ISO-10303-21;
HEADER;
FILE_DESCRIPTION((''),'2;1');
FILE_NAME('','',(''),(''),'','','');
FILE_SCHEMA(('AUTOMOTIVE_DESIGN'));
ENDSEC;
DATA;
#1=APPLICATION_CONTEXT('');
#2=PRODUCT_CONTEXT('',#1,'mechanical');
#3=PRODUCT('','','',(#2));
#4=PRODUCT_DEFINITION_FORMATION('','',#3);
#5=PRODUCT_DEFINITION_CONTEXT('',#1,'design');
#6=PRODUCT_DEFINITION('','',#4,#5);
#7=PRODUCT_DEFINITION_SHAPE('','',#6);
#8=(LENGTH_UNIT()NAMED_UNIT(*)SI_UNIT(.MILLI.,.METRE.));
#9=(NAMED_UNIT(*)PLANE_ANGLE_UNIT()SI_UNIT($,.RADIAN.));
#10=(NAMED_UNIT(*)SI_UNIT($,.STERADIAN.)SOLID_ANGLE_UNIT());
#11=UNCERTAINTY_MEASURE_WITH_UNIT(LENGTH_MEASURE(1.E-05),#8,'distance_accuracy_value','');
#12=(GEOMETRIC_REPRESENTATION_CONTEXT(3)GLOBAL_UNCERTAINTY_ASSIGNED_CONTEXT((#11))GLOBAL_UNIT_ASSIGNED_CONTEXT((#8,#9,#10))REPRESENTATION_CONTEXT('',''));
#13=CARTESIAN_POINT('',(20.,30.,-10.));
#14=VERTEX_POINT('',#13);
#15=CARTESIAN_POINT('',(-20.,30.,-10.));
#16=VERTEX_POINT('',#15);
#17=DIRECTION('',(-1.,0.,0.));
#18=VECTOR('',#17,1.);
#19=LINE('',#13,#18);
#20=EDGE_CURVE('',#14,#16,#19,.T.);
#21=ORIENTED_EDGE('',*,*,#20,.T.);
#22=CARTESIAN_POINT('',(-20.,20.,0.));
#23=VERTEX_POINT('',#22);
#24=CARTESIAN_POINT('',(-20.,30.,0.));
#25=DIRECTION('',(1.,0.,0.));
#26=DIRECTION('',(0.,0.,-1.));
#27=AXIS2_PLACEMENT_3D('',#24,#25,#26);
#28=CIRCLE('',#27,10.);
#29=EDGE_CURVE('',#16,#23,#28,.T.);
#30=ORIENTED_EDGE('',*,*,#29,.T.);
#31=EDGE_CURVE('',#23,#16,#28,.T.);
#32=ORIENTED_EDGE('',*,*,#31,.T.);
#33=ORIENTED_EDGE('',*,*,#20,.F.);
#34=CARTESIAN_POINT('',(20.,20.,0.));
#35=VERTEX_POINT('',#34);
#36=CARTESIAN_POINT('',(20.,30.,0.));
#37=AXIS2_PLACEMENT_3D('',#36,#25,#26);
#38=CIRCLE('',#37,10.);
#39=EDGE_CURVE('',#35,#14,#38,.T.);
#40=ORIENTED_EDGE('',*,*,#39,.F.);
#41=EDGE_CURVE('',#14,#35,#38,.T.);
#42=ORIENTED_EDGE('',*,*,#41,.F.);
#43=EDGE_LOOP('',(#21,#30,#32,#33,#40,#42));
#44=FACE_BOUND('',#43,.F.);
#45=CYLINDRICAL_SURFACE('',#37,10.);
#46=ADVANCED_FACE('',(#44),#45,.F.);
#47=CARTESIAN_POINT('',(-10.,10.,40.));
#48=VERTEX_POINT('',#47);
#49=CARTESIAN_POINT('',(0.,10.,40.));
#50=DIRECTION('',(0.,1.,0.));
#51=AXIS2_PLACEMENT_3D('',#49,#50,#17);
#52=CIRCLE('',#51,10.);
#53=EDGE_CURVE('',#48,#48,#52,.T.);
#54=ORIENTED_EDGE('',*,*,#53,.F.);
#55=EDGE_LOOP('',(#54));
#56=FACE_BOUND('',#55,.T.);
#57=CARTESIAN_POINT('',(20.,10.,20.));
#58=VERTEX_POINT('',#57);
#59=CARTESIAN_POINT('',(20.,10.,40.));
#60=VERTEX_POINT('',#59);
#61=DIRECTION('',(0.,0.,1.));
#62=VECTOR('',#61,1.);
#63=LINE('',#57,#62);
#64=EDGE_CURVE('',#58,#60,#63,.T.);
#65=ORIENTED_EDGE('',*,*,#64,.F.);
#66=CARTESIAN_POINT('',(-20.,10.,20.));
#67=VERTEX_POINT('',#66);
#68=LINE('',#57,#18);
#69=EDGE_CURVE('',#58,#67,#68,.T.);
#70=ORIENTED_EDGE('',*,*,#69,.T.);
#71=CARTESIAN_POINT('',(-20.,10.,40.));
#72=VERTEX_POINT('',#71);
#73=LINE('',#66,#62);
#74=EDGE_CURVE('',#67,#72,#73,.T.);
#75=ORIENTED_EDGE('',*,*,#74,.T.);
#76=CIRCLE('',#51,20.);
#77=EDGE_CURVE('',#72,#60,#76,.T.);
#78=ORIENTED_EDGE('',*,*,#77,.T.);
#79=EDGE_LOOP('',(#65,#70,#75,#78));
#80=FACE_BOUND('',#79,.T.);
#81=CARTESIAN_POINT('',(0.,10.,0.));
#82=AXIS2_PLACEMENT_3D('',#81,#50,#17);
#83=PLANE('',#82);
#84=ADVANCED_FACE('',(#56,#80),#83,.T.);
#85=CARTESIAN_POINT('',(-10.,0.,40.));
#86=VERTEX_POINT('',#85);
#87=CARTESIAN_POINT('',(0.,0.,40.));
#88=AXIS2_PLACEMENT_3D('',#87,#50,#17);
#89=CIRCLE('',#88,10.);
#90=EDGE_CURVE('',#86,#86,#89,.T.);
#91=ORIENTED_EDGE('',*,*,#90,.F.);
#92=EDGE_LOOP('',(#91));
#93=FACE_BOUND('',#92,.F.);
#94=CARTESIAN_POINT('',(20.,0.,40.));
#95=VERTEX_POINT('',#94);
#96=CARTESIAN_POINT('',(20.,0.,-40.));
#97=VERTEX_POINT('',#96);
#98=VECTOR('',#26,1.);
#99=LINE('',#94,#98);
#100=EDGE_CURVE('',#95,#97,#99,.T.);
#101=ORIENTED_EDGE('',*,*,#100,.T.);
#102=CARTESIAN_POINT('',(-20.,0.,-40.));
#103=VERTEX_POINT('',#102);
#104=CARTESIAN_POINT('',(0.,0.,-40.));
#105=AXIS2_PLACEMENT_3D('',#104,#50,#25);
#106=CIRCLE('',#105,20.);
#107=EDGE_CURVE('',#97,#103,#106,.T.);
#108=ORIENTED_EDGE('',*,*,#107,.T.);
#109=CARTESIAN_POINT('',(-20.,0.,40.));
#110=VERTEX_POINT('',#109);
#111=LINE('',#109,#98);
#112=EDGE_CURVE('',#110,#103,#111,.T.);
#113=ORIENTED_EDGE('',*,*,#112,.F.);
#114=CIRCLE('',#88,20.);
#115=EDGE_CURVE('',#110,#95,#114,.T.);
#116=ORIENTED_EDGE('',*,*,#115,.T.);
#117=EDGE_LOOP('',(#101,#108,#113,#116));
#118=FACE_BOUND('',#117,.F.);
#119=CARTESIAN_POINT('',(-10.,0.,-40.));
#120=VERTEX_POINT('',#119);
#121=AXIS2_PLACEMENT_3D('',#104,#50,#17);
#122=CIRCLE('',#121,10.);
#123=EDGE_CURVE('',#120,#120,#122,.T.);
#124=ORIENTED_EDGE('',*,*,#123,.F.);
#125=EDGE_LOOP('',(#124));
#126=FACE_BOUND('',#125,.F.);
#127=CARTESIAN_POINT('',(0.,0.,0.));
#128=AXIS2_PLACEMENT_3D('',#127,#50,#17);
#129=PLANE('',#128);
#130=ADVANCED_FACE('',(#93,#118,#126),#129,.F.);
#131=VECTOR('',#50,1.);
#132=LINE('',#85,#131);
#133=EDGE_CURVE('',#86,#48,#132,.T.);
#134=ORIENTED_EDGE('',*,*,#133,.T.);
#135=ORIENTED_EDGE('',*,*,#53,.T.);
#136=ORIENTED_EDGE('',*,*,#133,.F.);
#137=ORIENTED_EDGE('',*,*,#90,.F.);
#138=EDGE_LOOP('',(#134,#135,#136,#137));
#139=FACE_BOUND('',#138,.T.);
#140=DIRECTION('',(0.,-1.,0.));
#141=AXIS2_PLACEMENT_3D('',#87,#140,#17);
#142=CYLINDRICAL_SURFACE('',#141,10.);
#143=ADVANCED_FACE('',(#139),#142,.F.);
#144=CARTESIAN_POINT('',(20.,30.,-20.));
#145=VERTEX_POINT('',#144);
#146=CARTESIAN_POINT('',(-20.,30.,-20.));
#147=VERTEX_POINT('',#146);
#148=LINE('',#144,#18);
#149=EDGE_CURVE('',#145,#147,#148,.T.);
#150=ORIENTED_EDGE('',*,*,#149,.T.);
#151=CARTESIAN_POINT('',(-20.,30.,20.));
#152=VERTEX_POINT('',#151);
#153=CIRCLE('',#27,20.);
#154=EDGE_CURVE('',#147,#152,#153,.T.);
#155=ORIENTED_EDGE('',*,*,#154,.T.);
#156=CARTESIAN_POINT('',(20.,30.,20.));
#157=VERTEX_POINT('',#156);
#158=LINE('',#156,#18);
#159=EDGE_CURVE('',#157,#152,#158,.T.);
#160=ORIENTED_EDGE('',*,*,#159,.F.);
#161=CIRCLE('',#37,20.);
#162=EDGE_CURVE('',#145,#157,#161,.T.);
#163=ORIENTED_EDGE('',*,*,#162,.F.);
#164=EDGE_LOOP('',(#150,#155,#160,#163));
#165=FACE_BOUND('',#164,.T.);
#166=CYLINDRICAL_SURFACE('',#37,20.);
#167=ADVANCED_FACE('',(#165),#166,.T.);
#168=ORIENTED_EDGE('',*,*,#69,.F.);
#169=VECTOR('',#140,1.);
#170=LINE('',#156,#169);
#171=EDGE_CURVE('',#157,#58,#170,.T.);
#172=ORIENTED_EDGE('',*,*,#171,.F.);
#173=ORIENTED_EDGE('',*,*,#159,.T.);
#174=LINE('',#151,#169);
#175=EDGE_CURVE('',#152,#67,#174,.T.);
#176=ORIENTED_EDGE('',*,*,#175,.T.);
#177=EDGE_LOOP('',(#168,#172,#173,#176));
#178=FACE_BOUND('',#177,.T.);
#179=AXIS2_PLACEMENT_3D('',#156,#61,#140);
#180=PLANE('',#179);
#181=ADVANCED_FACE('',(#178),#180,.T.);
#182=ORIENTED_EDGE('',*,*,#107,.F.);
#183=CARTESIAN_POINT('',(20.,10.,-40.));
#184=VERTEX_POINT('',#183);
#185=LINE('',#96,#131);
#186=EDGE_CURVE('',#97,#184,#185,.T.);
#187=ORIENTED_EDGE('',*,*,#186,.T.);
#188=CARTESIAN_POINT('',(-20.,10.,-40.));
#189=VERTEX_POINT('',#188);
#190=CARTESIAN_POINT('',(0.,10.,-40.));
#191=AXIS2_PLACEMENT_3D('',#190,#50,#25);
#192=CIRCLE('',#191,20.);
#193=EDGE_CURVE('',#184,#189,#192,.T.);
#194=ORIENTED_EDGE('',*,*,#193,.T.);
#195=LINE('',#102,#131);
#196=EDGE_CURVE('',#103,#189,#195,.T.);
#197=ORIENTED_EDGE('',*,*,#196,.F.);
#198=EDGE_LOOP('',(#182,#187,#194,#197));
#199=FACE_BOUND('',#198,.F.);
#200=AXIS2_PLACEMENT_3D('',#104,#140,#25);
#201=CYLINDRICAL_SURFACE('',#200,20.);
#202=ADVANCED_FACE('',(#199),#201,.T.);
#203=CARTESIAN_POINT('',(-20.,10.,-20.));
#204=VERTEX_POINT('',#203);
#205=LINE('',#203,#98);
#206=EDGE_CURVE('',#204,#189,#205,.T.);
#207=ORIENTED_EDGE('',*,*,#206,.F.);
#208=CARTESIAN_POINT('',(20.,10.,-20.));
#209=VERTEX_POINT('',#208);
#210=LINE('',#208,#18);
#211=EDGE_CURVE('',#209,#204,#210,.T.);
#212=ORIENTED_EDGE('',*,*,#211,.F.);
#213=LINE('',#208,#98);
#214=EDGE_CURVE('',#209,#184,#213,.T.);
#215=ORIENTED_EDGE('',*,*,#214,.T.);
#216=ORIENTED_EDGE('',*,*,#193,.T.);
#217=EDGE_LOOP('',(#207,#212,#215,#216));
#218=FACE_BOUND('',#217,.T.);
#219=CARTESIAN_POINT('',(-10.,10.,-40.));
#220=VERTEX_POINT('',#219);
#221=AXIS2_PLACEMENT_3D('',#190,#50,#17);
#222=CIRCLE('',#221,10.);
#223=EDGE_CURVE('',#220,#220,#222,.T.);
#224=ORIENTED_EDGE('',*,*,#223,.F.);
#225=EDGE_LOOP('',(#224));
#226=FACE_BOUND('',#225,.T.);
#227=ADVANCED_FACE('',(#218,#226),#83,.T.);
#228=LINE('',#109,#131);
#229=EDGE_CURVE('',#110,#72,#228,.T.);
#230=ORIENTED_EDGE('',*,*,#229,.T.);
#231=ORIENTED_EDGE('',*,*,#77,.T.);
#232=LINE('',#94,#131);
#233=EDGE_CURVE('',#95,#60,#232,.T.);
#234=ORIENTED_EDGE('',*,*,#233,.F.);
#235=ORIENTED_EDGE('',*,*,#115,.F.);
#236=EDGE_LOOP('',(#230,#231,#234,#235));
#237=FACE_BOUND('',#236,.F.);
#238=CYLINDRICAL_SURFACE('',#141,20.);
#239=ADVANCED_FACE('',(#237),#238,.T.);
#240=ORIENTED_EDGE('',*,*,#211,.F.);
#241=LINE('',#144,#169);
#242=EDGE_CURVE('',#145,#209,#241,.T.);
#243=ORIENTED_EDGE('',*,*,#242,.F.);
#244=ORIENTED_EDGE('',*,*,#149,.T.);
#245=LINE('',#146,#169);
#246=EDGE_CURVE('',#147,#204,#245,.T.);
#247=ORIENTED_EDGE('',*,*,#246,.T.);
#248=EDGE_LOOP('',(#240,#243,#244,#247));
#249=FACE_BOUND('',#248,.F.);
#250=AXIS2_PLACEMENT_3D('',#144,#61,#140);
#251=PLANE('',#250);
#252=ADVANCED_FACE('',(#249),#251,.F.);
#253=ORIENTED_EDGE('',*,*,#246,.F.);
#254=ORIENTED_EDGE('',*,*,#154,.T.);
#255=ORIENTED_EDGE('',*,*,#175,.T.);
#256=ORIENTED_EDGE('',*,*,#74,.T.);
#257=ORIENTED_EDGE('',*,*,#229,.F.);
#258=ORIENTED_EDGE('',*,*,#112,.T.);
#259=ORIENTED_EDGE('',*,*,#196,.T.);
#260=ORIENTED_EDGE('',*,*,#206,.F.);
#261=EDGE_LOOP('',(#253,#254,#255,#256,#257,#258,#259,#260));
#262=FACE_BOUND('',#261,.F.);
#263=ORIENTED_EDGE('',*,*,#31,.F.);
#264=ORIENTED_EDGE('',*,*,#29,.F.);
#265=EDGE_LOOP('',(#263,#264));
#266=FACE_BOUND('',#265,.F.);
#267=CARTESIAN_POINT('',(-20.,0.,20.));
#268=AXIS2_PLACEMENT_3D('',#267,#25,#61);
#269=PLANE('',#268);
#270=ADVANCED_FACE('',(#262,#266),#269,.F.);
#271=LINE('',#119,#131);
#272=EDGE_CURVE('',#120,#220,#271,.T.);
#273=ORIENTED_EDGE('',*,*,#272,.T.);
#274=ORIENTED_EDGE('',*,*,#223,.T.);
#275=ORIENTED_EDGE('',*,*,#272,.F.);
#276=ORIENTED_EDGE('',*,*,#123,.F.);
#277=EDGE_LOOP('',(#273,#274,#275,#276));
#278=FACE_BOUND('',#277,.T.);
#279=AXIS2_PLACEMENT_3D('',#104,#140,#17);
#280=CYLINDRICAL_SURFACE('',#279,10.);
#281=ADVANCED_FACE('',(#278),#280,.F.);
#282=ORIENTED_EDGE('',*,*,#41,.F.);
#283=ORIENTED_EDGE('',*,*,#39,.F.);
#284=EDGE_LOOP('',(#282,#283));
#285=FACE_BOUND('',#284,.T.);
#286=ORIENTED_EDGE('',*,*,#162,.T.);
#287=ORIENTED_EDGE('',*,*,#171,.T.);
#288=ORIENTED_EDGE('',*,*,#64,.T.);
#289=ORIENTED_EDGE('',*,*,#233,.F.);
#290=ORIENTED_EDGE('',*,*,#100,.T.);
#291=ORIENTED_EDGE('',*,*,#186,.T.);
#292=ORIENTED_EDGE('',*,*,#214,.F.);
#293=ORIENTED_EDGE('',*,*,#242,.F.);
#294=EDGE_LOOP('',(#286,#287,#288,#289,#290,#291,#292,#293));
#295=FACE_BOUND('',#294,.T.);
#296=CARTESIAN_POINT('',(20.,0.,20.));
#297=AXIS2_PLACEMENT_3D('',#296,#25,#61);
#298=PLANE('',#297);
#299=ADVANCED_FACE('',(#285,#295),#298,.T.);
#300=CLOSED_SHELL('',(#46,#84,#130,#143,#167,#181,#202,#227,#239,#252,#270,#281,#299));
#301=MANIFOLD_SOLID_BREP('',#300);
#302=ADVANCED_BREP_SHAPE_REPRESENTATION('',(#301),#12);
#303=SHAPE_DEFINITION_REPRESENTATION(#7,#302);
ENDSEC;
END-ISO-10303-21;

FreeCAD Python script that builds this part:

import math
import FreeCAD as App
import Part
import Sketcher
from FreeCAD import Vector

doc = App.newDocument("Part")
params = doc.addObject("Spreadsheet::Sheet", "Params")
for row, (alias, value) in enumerate([
    ("sketch1_diameter", "20 mm"),
    ("sketch1_radius", "20 mm"),
    ("sketch1_height", "80 mm"),
    ("pad1_length", "10 mm"),
    ("sketch2_diameter", "20 mm"),
    ("sketch2_radius", "20 mm"),
    ("pad2_length", "40 mm"),
], start=1):
    params.set(f"A{row}", alias)
    params.set(f"B{row}", "=" + value)
    params.setAlias(f"B{row}", alias)

body = doc.addObject("PartDesign::Body", "Body")

sketch1 = doc.addObject("Sketcher::SketchObject", "Sketch")
body.addObject(sketch1)
sketch1.AttachmentSupport = (doc.XZ_Plane, [""])
sketch1.MapMode = "FlatFace"
sketch1.addGeometry([
    Part.LineSegment(Vector(20, 40, 0), Vector(20, -40, 0)),
    Part.ArcOfCircle(Part.Circle(Vector(0, -40, 0), Vector(0, 0, 1), 20), math.radians(180), math.radians(360)),
    Part.LineSegment(Vector(-20, -40, 0), Vector(-20, 40, 0)),
    Part.ArcOfCircle(Part.Circle(Vector(0, 40, 0), Vector(0, 0, 1), 20), math.radians(0), math.radians(180)),
    Part.Circle(Vector(0, -40, 0), Vector(0, 0, 1), 10),
    Part.Circle(Vector(0, 40, 0), Vector(0, 0, 1), 10),
], False)
sketch1.addConstraint([
    Sketcher.Constraint("Tangent", 0, 2, 1, 2),
    Sketcher.Constraint("Tangent", 1, 1, 2, 1),
    Sketcher.Constraint("Tangent", 2, 2, 3, 2),
    Sketcher.Constraint("Tangent", 3, 1, 0, 1),
    Sketcher.Constraint("Vertical", 0),
    Sketcher.Constraint("Vertical", 2),
    Sketcher.Constraint("Coincident", 4, 3, 1, 3),
    Sketcher.Constraint("Coincident", 5, 3, 3, 3),
    Sketcher.Constraint("Equal", 4, 5),
    Sketcher.Constraint("Symmetric", 1, 3, 3, 3, -1, 1),
    Sketcher.Constraint("Diameter", 4, 20.0),
    Sketcher.Constraint("Radius", 1, 20.0),
    Sketcher.Constraint("DistanceY", 0, 2, 0, 1, 80.0),
])
sketch1.setExpression("Constraints[10]", "Params.sketch1_diameter")
sketch1.setExpression("Constraints[11]", "Params.sketch1_radius")
sketch1.setExpression("Constraints[12]", "Params.sketch1_height")
pad1 = doc.addObject("PartDesign::Pad", "Pad")
body.addObject(pad1)
pad1.Profile = sketch1
pad1.setExpression("Length", "Params.pad1_length")
pad1.Reversed = True

sketch2 = doc.addObject("Sketcher::SketchObject", "Sketch001")
body.addObject(sketch2)
sketch2.AttachmentSupport = (doc.YZ_Plane, [""])
sketch2.MapMode = "FlatFace"
sketch2.AttachmentOffset = App.Placement(Vector(0, 0, 20), App.Rotation())
sketch2.addGeometry([
    Part.LineSegment(Vector(10, 0, 0), Vector(10, -20, 0)),
    Part.LineSegment(Vector(10, -20, 0), Vector(30, -20, 0)),
    Part.ArcOfCircle(Part.Circle(Vector(30, 0, 0), Vector(0, 0, 1), 20), math.radians(-90), math.radians(90)),
    Part.LineSegment(Vector(30, 20, 0), Vector(10, 20, 0)),
    Part.LineSegment(Vector(10, 20, 0), Vector(10, 0, 0)),
    Part.Circle(Vector(30, 0, 0), Vector(0, 0, 1), 10),
], False)
sketch2.addConstraint([
    Sketcher.Constraint("Coincident", 0, 2, 1, 1),
    Sketcher.Constraint("Tangent", 1, 2, 2, 1),
    Sketcher.Constraint("Tangent", 2, 2, 3, 1),
    Sketcher.Constraint("Coincident", 3, 2, 4, 1),
    Sketcher.Constraint("Coincident", 4, 2, 0, 1),
    Sketcher.Constraint("Vertical", 0),
    Sketcher.Constraint("Horizontal", 1),
    Sketcher.Constraint("Horizontal", 3),
    Sketcher.Constraint("Vertical", 4),
    Sketcher.Constraint("Coincident", 5, 3, 2, 3),
    Sketcher.Constraint("PointOnObject", 2, 3, -1),
    Sketcher.Constraint("PointOnObject", 4, 2, -1),
    Sketcher.Constraint("Equal", 3, 0),
    Sketcher.Constraint("Diameter", 5, 20.0),
    Sketcher.Constraint("Radius", 2, 20.0),
    Sketcher.Constraint("DistanceX", -1, 1, 2, 3, 30.0),
])
sketch2.setExpression("Constraints[13]", "Params.sketch2_diameter")
sketch2.setExpression("Constraints[14]", "Params.sketch2_radius")
pad2 = doc.addObject("PartDesign::Pad", "Pad001")
body.addObject(pad2)
pad2.Profile = sketch2
pad2.setExpression("Length", "Params.pad2_length")
pad2.Reversed = True

doc.recompute()
